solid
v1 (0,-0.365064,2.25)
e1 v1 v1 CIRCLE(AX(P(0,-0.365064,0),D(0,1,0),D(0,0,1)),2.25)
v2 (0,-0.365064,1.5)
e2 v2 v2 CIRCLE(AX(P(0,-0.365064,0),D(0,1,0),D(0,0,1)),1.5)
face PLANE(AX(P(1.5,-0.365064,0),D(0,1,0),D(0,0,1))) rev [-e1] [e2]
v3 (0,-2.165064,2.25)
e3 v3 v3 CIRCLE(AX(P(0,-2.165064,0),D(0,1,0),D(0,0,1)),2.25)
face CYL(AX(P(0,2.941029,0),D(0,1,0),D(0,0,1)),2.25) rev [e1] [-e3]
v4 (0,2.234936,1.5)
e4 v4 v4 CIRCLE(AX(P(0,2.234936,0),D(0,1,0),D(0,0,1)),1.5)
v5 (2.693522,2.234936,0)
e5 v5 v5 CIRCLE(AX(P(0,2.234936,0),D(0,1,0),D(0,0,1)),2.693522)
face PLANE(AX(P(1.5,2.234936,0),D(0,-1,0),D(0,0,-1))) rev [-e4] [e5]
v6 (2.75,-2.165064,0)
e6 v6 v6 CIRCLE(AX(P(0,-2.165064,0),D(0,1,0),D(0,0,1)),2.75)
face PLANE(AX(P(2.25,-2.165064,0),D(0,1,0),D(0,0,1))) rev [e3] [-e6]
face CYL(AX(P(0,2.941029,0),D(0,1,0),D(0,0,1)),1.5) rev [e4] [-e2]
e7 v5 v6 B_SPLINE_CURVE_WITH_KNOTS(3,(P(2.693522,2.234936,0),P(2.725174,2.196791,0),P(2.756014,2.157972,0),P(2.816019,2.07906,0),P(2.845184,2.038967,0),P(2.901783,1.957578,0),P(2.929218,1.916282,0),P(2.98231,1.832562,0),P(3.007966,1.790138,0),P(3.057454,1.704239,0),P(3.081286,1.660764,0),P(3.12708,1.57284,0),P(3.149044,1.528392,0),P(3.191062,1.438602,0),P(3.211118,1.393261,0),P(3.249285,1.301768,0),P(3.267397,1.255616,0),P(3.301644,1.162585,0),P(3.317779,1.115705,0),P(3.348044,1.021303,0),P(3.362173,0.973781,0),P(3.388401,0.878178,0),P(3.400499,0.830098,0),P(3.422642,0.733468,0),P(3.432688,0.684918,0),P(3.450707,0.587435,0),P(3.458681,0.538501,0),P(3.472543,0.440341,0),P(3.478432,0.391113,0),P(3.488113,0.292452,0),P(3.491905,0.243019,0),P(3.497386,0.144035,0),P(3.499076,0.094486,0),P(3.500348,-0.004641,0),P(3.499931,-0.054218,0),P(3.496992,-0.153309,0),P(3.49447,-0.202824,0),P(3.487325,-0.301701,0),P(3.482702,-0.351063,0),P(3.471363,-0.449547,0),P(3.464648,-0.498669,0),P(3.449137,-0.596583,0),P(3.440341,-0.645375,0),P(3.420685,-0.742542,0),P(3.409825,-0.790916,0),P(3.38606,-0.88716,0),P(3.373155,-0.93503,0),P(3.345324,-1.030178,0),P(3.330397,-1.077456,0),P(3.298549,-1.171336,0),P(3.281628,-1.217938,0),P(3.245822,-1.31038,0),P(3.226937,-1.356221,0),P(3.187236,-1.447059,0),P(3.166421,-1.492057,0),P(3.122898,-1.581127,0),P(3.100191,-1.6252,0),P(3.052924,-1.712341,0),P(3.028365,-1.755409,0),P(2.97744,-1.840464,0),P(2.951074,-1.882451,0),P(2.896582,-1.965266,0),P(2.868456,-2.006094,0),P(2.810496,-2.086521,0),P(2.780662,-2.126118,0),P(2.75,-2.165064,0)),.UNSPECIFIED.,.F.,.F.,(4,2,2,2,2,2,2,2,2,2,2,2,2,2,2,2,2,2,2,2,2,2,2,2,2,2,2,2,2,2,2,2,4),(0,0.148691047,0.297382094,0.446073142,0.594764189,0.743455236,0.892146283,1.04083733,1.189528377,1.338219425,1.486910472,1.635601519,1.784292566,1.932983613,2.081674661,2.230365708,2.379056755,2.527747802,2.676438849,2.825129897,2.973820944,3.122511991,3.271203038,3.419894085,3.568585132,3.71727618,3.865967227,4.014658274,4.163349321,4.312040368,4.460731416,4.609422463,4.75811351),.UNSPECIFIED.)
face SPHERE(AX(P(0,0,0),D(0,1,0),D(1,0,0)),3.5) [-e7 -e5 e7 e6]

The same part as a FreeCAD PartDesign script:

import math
import FreeCAD as App
import Part
import Sketcher
from FreeCAD import Vector

doc = App.newDocument("Part")
body = doc.addObject("PartDesign::Body", "Body")

sketch1 = doc.addObject("Sketcher::SketchObject", "Sketch")
body.addObject(sketch1)
sketch1.AttachmentSupport = (doc.XY_Plane, [""])
sketch1.MapMode = "FlatFace"
sketch1.addGeometry(Part.LineSegment(Vector(1.5, 2.2, 0), Vector(1.5, -0.4, 0)), False)
sketch1.addGeometry(Part.LineSegment(Vector(1.5, -0.4, 0), Vector(2.2, -0.4, 0)), False)
sketch1.addGeometry(Part.LineSegment(Vector(2.2, -0.4, 0), Vector(2.2, -2.2, 0)), False)
sketch1.addGeometry(Part.LineSegment(Vector(2.2, -2.2, 0), Vector(2.8, -2.2, 0)), False)
sketch1.addGeometry(Part.ArcOfCircle(Part.Circle(Vector(0, 0, 0), Vector(0, 0, 1), 3.5), math.radians(-38), math.radians(40)), False)
sketch1.addGeometry(Part.LineSegment(Vector(2.7, 2.2, 0), Vector(1.5, 2.2, 0)), False)
sketch1.addConstraint(Sketcher.Constraint("Coincident", 0, 2, 1, 1))
sketch1.addConstraint(Sketcher.Constraint("Coincident", 1, 2, 2, 1))
sketch1.addConstraint(Sketcher.Constraint("Coincident", 2, 2, 3, 1))
sketch1.addConstraint(Sketcher.Constraint("Coincident", 3, 2, 4, 1))
sketch1.addConstraint(Sketcher.Constraint("Coincident", 4, 2, 5, 1))
sketch1.addConstraint(Sketcher.Constraint("Coincident", 5, 2, 0, 1))
sketch1.addConstraint(Sketcher.Constraint("Vertical", 0))
sketch1.addConstraint(Sketcher.Constraint("Horizontal", 1))
sketch1.addConstraint(Sketcher.Constraint("Vertical", 2))
sketch1.addConstraint(Sketcher.Constraint("Horizontal", 3))
sketch1.addConstraint(Sketcher.Constraint("Horizontal", 5))
sketch1.addConstraint(Sketcher.Constraint("Coincident", 4, 3, -1, 1))
sketch1.addConstraint(Sketcher.Constraint("Radius", 4, 3.5))
sketch1.addConstraint(Sketcher.Constraint("DistanceX", 3, 1, 3, 2, 0.5))
sketch1.addConstraint(Sketcher.Constraint("DistanceY", 0, 2, 0, 1, 2.6))
sketch1.addConstraint(Sketcher.Constraint("DistanceY", 2, 2, 2, 1, 1.8))
sketch1.addConstraint(Sketcher.Constraint("DistanceX", 1, 1, 1, 2, 0.75))
sketch1.addConstraint(Sketcher.Constraint("DistanceX", -1, 1, 0, 2, 1.5))
revolution = doc.addObject("PartDesign::Revolution", "Revolution")
body.addObject(revolution)
revolution.Profile = sketch1
revolution.ReferenceAxis = (sketch1, ["V_Axis"])
revolution.Angle = 360

doc.recompute()
